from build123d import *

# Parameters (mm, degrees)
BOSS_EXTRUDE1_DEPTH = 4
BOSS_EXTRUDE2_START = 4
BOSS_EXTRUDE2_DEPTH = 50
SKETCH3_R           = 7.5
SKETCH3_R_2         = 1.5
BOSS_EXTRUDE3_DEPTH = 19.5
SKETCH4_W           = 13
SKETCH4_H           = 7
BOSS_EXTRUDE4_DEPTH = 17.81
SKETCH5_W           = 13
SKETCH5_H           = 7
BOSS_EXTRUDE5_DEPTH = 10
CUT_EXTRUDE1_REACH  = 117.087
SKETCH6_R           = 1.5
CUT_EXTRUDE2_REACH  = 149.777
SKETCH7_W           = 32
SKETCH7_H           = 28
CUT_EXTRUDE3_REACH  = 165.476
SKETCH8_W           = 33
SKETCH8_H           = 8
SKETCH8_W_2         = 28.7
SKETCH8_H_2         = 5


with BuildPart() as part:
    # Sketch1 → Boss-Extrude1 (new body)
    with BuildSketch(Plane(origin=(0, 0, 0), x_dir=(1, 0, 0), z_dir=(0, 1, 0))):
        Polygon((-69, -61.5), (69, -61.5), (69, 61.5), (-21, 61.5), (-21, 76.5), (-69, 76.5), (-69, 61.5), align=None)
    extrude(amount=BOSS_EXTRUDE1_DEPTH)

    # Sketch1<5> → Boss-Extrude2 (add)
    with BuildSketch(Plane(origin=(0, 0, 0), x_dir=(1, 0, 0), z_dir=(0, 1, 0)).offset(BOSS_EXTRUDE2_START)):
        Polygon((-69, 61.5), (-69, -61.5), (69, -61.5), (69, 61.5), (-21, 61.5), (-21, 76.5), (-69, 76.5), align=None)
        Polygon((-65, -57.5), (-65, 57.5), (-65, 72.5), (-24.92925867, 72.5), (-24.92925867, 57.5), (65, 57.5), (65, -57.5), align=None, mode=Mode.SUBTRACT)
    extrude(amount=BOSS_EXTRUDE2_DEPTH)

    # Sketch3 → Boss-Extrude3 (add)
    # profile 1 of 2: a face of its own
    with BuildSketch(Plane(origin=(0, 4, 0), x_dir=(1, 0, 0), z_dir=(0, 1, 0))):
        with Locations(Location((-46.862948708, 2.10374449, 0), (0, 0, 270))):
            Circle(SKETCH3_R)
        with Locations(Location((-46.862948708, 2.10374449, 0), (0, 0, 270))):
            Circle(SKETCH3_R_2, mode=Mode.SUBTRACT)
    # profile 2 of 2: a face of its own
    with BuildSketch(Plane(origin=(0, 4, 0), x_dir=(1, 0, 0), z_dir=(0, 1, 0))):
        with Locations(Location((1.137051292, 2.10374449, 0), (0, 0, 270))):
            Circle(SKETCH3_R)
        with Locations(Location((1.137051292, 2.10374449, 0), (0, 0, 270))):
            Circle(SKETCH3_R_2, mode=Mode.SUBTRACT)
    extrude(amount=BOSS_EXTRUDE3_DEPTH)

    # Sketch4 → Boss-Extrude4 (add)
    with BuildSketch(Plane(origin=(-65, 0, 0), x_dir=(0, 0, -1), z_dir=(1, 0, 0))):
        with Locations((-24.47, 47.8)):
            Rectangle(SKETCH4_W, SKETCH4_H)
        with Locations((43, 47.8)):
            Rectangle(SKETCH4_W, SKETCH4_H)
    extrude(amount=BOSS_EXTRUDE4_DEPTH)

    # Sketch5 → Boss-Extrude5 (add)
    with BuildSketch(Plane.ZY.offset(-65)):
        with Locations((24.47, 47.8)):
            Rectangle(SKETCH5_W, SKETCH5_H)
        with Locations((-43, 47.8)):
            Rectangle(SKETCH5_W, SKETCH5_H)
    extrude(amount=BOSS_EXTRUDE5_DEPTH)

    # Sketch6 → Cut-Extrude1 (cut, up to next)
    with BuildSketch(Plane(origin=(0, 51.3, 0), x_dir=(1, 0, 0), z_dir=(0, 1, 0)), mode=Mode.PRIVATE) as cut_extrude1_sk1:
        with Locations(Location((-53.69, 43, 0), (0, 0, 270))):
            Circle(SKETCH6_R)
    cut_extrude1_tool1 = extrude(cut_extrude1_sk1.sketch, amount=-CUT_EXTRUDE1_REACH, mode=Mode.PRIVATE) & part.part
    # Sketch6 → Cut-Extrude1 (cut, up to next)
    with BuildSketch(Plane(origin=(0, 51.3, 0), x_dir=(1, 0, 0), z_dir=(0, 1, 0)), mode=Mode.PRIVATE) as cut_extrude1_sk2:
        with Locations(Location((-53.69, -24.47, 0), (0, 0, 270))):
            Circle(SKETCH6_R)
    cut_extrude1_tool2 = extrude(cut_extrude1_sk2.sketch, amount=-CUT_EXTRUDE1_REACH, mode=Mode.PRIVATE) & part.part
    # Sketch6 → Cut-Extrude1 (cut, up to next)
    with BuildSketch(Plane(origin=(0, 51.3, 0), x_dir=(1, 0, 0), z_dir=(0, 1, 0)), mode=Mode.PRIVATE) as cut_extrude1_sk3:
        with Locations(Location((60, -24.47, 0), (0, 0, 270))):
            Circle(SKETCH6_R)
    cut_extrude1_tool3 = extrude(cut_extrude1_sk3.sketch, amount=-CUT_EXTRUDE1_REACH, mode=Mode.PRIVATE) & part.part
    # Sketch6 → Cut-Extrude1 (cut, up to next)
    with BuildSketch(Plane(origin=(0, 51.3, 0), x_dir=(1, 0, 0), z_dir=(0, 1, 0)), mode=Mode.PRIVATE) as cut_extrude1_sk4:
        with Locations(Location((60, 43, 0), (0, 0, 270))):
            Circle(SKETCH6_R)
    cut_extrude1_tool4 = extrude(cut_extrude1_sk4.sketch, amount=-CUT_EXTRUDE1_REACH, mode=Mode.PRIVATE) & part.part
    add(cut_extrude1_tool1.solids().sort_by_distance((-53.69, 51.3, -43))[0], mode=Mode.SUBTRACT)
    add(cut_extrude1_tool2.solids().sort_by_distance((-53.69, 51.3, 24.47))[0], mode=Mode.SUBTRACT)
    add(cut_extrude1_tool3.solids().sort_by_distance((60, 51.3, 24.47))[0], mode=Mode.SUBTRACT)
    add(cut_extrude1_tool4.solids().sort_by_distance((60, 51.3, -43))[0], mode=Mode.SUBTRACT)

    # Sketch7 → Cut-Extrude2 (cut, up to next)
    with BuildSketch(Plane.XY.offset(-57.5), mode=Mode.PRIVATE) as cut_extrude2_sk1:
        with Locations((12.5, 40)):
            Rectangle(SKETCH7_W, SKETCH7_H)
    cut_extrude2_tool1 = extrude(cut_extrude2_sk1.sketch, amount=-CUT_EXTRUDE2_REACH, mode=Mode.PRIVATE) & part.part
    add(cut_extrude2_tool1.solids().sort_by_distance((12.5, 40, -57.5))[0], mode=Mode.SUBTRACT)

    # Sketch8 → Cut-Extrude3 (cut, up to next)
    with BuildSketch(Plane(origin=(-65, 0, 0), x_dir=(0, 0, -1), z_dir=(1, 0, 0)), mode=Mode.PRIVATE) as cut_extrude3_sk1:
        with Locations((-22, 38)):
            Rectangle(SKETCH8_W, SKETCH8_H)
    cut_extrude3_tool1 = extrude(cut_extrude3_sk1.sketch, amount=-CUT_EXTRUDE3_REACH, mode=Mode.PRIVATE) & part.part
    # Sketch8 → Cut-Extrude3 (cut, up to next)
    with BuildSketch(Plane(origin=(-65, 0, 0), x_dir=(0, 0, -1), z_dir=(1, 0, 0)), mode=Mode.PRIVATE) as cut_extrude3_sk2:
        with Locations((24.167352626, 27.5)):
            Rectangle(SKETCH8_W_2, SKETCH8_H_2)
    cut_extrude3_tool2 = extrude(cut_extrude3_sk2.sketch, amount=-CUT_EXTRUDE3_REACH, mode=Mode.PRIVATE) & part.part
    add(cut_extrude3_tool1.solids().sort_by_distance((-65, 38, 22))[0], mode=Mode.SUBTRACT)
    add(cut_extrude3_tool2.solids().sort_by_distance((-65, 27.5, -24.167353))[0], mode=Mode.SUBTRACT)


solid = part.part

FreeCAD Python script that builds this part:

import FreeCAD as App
import Part
import Sketcher
from FreeCAD import Vector

doc = App.newDocument("Part")
body = doc.addObject("PartDesign::Body", "Body")

# Sketch on XZ plane
sketch1 = body.newObject("Sketcher::SketchObject", "Sketch")
sketch1.AttachmentSupport = (doc.getObject("XZ_Plane"), [""])
sketch1.MapMode = "FlatFace"
sketch1.addGeometry([
    Part.LineSegment(Vector(-69, 62, 0), Vector(69, 62, 0)),  # 0
    Part.LineSegment(Vector(69, 62, 0), Vector(69, -62, 0)),  # 1
    Part.LineSegment(Vector(69, -62, 0), Vector(-21, -62, 0)),  # 2
    Part.LineSegment(Vector(-21, -62, 0), Vector(-21, -76, 0)),  # 3
    Part.LineSegment(Vector(-21, -76, 0), Vector(-69, -76, 0)),  # 4
    Part.LineSegment(Vector(-69, -76, 0), Vector(-69, 62, 0)),  # 5
], False)
sketch1.addConstraint([
    Sketcher.Constraint("Coincident", 0, 2, 1, 1),
    Sketcher.Constraint("Coincident", 1, 2, 2, 1),
    Sketcher.Constraint("Coincident", 2, 2, 3, 1),
    Sketcher.Constraint("Coincident", 3, 2, 4, 1),
    Sketcher.Constraint("Coincident", 4, 2, 5, 1),
    Sketcher.Constraint("Coincident", 5, 2, 0, 1),
    Sketcher.Constraint("Horizontal", 0),
    Sketcher.Constraint("Vertical", 1),
    Sketcher.Constraint("Horizontal", 2),
    Sketcher.Constraint("Vertical", 3),
    Sketcher.Constraint("Horizontal", 4),
    Sketcher.Constraint("Vertical", 5),
    Sketcher.Constraint("Symmetric", 1, 2, 5, 2, -1, 1),
    Sketcher.Constraint("Equal", 0, 5),
    Sketcher.Constraint("DistanceX", 0, 1, 0, 2, 138.0),
    Sketcher.Constraint("DistanceX", 2, 2, 2, 1, 90.0),
    Sketcher.Constraint("DistanceY", 1, 2, 1, 1, 123.0),
])
pad1 = body.newObject("PartDesign::Pad", "Pad")
pad1.Profile = sketch1
pad1.Length = 4
pad1.Reversed = True

# Sketch on XZ plane
sketch2 = body.newObject("Sketcher::SketchObject", "Sketch001")
sketch2.AttachmentSupport = (doc.getObject("XZ_Plane"), [""])
sketch2.MapMode = "FlatFace"
sketch2.AttachmentOffset = App.Placement(Vector(0, 0, -4), App.Rotation())
sketch2.addGeometry([
    Part.LineSegment(Vector(-69, 62, 0), Vector(69, 62, 0)),  # 0
    Part.LineSegment(Vector(69, 62, 0), Vector(69, -62, 0)),  # 1
    Part.LineSegment(Vector(69, -62, 0), Vector(-21, -62, 0)),  # 2
    Part.LineSegment(Vector(-21, -62, 0), Vector(-21, -76, 0)),  # 3
    Part.LineSegment(Vector(-21, -76, 0), Vector(-69, -76, 0)),  # 4
    Part.LineSegment(Vector(-69, -76, 0), Vector(-69, 62, 0)),  # 5
    Part.LineSegment(Vector(65, 58, 0), Vector(-65, 58, 0)),  # 6
    Part.LineSegment(Vector(-65, 58, 0), Vector(-65, -72, 0)),  # 7
    Part.LineSegment(Vector(-65, -72, 0), Vector(-25, -72, 0)),  # 8
    Part.LineSegment(Vector(-25, -72, 0), Vector(-25, -58, 0)),  # 9
    Part.LineSegment(Vector(-25, -58, 0), Vector(65, -58, 0)),  # 10
    Part.LineSegment(Vector(65, -58, 0), Vector(65, 58, 0)),  # 11
], False)
sketch2.addConstraint([
    Sketcher.Constraint("Coincident", 0, 2, 1, 1),
    Sketcher.Constraint("Coincident", 1, 2, 2, 1),
    Sketcher.Constraint("Coincident", 2, 2, 3, 1),
    Sketcher.Constraint("Coincident", 3, 2, 4, 1),
    Sketcher.Constraint("Coincident", 4, 2, 5, 1),
    Sketcher.Constraint("Coincident", 5, 2, 0, 1),
    Sketcher.Constraint("Coincident", 6, 2, 7, 1),
    Sketcher.Constraint("Coincident", 7, 2, 8, 1),
    Sketcher.Constraint("Coincident", 8, 2, 9, 1),
    Sketcher.Constraint("Coincident", 9, 2, 10, 1),
    Sketcher.Constraint("Coincident", 10, 2, 11, 1),
    Sketcher.Constraint("Coincident", 11, 2, 6, 1),
    Sketcher.Constraint("Horizontal", 0),
    Sketcher.Constraint("Vertical", 1),
    Sketcher.Constraint("Horizontal", 2),
    Sketcher.Constraint("Vertical", 3),
    Sketcher.Constraint("Horizontal", 4),
    Sketcher.Constraint("Vertical", 5),
    Sketcher.Constraint("Horizontal", 6),
    Sketcher.Constraint("Vertical", 7),
    Sketcher.Constraint("Horizontal", 8),
    Sketcher.Constraint("Vertical", 9),
    Sketcher.Constraint("Horizontal", 10),
    Sketcher.Constraint("Vertical", 11),
    Sketcher.Constraint("Symmetric", 1, 2, 5, 2, -1, 1),
    Sketcher.Constraint("Symmetric", 6, 2, 10, 2, -1, 1),
    Sketcher.Constraint("Equal", 0, 5),
    Sketcher.Constraint("Equal", 6, 7),
    Sketcher.Constraint("Equal", 3, 9),
    Sketcher.Constraint("DistanceX", 0, 1, 0, 2, 138.0),
    Sketcher.Constraint("DistanceX", 2, 2, 2, 1, 90.0),
    Sketcher.Constraint("DistanceX", 6, 2, 6, 1, 130.0),
    Sketcher.Constraint("DistanceY", 1, 2, 1, 1, 123.0),
    Sketcher.Constraint("DistanceX", 8, 1, 8, 2, 40.070741),
])
pad2 = body.newObject("PartDesign::Pad", "Pad001")
pad2.Profile = sketch2
pad2.Length = 50
pad2.Reversed = True

# Sketch on XZ plane
sketch3 = body.newObject("Sketcher::SketchObject", "Sketch002")
sketch3.AttachmentSupport = (doc.getObject("XZ_Plane"), [""])
sketch3.MapMode = "FlatFace"
sketch3.AttachmentOffset = App.Placement(Vector(0, 0, -4), App.Rotation())
sketch3.addGeometry([
    Part.Circle(Vector(-46.9, -2.1, 0), Vector(0, 0, 1), 7.5),
    Part.Circle(Vector(-46.9, -2.1, 0), Vector(0, 0, 1), 1.5),
    Part.Circle(Vector(1.1, -2.1, 0), Vector(0, 0, 1), 7.5),
    Part.Circle(Vector(1.1, -2.1, 0), Vector(0, 0, 1), 1.5),
], False)
sketch3.addConstraint([
    Sketcher.Constraint("Coincident", 1, 3, 0, 3),
    Sketcher.Constraint("Coincident", 3, 3, 2, 3),
    Sketcher.Constraint("Equal", 0, 2),
    Sketcher.Constraint("Equal", 1, 3),
    Sketcher.Constraint("Horizontal", 1, 3, 2, 3),
    Sketcher.Constraint("Diameter", 0, 15.0),
    Sketcher.Constraint("Diameter", 1, 3.0),
    Sketcher.Constraint("DistanceX", 0, 3, 2, 3, 48.0),
    Sketcher.Constraint("DistanceX", 0, 3, -1, 1, 46.862949),
    Sketcher.Constraint("DistanceY", 0, 3, -1, 1, 2.103744),
])
pad3 = body.newObject("PartDesign::Pad", "Pad002")
pad3.Profile = sketch3
pad3.Length = 19.5
pad3.Reversed = True

# Sketch on YZ plane
sketch4 = body.newObject("Sketcher::SketchObject", "Sketch003")
sketch4.AttachmentSupport = (doc.getObject("YZ_Plane"), [""])
sketch4.MapMode = "FlatFace"
sketch4.AttachmentOffset = App.Placement(Vector(0, 0, -65), App.Rotation())
sketch4.addGeometry([
    Part.LineSegment(Vector(51, 31, 0), Vector(44, 31, 0)),  # 0
    Part.LineSegment(Vector(44, 31, 0), Vector(44, 18, 0)),  # 1
    Part.LineSegment(Vector(44, 18, 0), Vector(51, 18, 0)),  # 2
    Part.LineSegment(Vector(51, 18, 0), Vector(51, 31, 0)),  # 3
    Part.LineSegment(Vector(51, -36, 0), Vector(44, -36, 0)),  # 4
    Part.LineSegment(Vector(44, -36, 0), Vector(44, -50, 0)),  # 5
    Part.LineSegment(Vector(44, -50, 0), Vector(51, -50, 0)),  # 6
    Part.LineSegment(Vector(51, -50, 0), Vector(51, -36, 0)),  # 7
], False)
sketch4.addConstraint([
    Sketcher.Constraint("Coincident", 0, 2, 1, 1),
    Sketcher.Constraint("Coincident", 1, 2, 2, 1),
    Sketcher.Constraint("Coincident", 2, 2, 3, 1),
    Sketcher.Constraint("Coincident", 3, 2, 0, 1),
    Sketcher.Constraint("Coincident", 4, 2, 5, 1),
    Sketcher.Constraint("Coincident", 5, 2, 6, 1),
    Sketcher.Constraint("Coincident", 6, 2, 7, 1),
    Sketcher.Constraint("Coincident", 7, 2, 4, 1),
    Sketcher.Constraint("Horizontal", 0),
    Sketcher.Constraint("Vertical", 1),
    Sketcher.Constraint("Horizontal", 2),
    Sketcher.Constraint("Vertical", 3),
    Sketcher.Constraint("Horizontal", 4),
    Sketcher.Constraint("Vertical", 5),
    Sketcher.Constraint("Horizontal", 6),
    Sketcher.Constraint("Vertical", 7),
    Sketcher.Constraint("Vertical", 1, 2, 4, 2),
    Sketcher.Constraint("Vertical", 3, 2, 6, 2),
    Sketcher.Constraint("Equal", 3, 5),
    Sketcher.Constraint("DistanceX", 0, 2, 0, 1, 7.0),
    Sketcher.Constraint("DistanceY", 1, 2, 1, 1, 13.0),
    Sketcher.Constraint("DistanceX", -1, 1, 0, 2, 44.3),
    Sketcher.Constraint("DistanceY", 4, 2, -1, 1, 36.5),
    Sketcher.Constraint("DistanceY", -1, 1, 0, 2, 30.97),
])
pad4 = body.newObject("PartDesign::Pad", "Pad003")
pad4.Profile = sketch4
pad4.Length = 17.81

# Sketch on YZ plane
sketch5 = body.newObject("Sketcher::SketchObject", "Sketch004")
sketch5.AttachmentSupport = (doc.getObject("YZ_Plane"), [""])
sketch5.MapMode = "FlatFace"
sketch5.AttachmentOffset = App.Placement(Vector(0, 0, 65), App.Rotation())
sketch5.addGeometry([
    Part.LineSegment(Vector(51, 18, 0), Vector(44, 18, 0)),  # 0
    Part.LineSegment(Vector(44, 18, 0), Vector(44, 31, 0)),  # 1
    Part.LineSegment(Vector(44, 31, 0), Vector(51, 31, 0)),  # 2
    Part.LineSegment(Vector(51, 31, 0), Vector(51, 18, 0)),  # 3
    Part.LineSegment(Vector(51, -50, 0), Vector(44, -50, 0)),  # 4
    Part.LineSegment(Vector(44, -50, 0), Vector(44, -36, 0)),  # 5
    Part.LineSegment(Vector(44, -36, 0), Vector(51, -36, 0)),  # 6
    Part.LineSegment(Vector(51, -36, 0), Vector(51, -50, 0)),  # 7
], False)
sketch5.addConstraint([
    Sketcher.Constraint("Coincident", 0, 2, 1, 1),
    Sketcher.Constraint("Coincident", 1, 2, 2, 1),
    Sketcher.Constraint("Coincident", 2, 2, 3, 1),
    Sketcher.Constraint("Coincident", 3, 2, 0, 1),
    Sketcher.Constraint("Coincident", 4, 2, 5, 1),
    Sketcher.Constraint("Coincident", 5, 2, 6, 1),
    Sketcher.Constraint("Coincident", 6, 2, 7, 1),
    Sketcher.Constraint("Coincident", 7, 2, 4, 1),
    Sketcher.Constraint("Horizontal", 0),
    Sketcher.Constraint("Vertical", 1),
    Sketcher.Constraint("Horizontal", 2),
    Sketcher.Constraint("Vertical", 3),
    Sketcher.Constraint("Horizontal", 4),
    Sketcher.Constraint("Vertical", 5),
    Sketcher.Constraint("Horizontal", 6),
    Sketcher.Constraint("Vertical", 7),
    Sketcher.Constraint("Vertical", 1, 2, 4, 2),
    Sketcher.Constraint("Vertical", 3, 2, 6, 2),
    Sketcher.Constraint("Equal", 3, 5),
    Sketcher.Constraint("DistanceX", 0, 2, 0, 1, 7.0),
    Sketcher.Constraint("DistanceY", 1, 1, 1, 2, 13.0),
    Sketcher.Constraint("DistanceX", -1, 1, 0, 2, 44.3),
    Sketcher.Constraint("DistanceY", 4, 2, -1, 1, 49.5),
    Sketcher.Constraint("DistanceY", -1, 1, 0, 2, 17.97),
])
pad5 = body.newObject("PartDesign::Pad", "Pad004")
pad5.Profile = sketch5
pad5.Length = 10
pad5.Reversed = True

# Sketch on XZ plane
sketch6 = body.newObject("Sketcher::SketchObject", "Sketch005")
sketch6.AttachmentSupport = (doc.getObject("XZ_Plane"), [""])
sketch6.MapMode = "FlatFace"
sketch6.AttachmentOffset = App.Placement(Vector(0, 0, -51.3), App.Rotation())
sketch6.addGeometry(Part.Circle(Vector(-53.7, -43, 0), Vector(0, 0, 1), 1.5), False)
sketch6.addConstraint([
    Sketcher.Constraint("Diameter", 0, 3.0),
    Sketcher.Constraint("DistanceY", 0, 3, -1, 1, 43.0),
    Sketcher.Constraint("DistanceX", 0, 3, -1, 1, 53.69),
])
pocket1 = body.newObject("PartDesign::Pocket", "Pocket")
pocket1.Profile = sketch6
pocket1.Type = "UpToFirst"
pocket1.Reversed = True

# Sketch on XZ plane
sketch7 = body.newObject("Sketcher::SketchObject", "Sketch006")
sketch7.AttachmentSupport = (doc.getObject("XZ_Plane"), [""])
sketch7.MapMode = "FlatFace"
sketch7.AttachmentOffset = App.Placement(Vector(0, 0, -51.3), App.Rotation())
sketch7.addGeometry(Part.Circle(Vector(-53.7, 24.5, 0), Vector(0, 0, 1), 1.5), False)
sketch7.addConstraint([
    Sketcher.Constraint("Diameter", 0, 3.0),
    Sketcher.Constraint("DistanceX", 0, 3, -1, 1, 53.69),
    Sketcher.Constraint("DistanceY", -1, 1, 0, 3, 24.47),
])
pocket2 = body.newObject("PartDesign::Pocket", "Pocket001")
pocket2.Profile = sketch7
pocket2.Type = "UpToFirst"
pocket2.Reversed = True

# Sketch on XZ plane
sketch8 = body.newObject("Sketcher::SketchObject", "Sketch007")
sketch8.AttachmentSupport = (doc.getObject("XZ_Plane"), [""])
sketch8.MapMode = "FlatFace"
sketch8.AttachmentOffset = App.Placement(Vector(0, 0, -51.3), App.Rotation())
sketch8.addGeometry(Part.Circle(Vector(60, 24.5, 0), Vector(0, 0, 1), 1.5), False)
sketch8.addConstraint([
    Sketcher.Constraint("Diameter", 0, 3.0),
    Sketcher.Constraint("DistanceX", -1, 1, 0, 3, 60.0),
    Sketcher.Constraint("DistanceY", -1, 1, 0, 3, 24.47),
])
pocket3 = body.newObject("PartDesign::Pocket", "Pocket002")
pocket3.Profile = sketch8
pocket3.Type = "UpToFirst"
pocket3.Reversed = True

# Sketch on XZ plane
sketch9 = body.newObject("Sketcher::SketchObject", "Sketch008")
sketch9.AttachmentSupport = (doc.getObject("XZ_Plane"), [""])
sketch9.MapMode = "FlatFace"
sketch9.AttachmentOffset = App.Placement(Vector(0, 0, -51.3), App.Rotation())
sketch9.addGeometry(Part.Circle(Vector(60, -43, 0), Vector(0, 0, 1), 1.5), False)
sketch9.addConstraint([
    Sketcher.Constraint("Diameter", 0, 3.0),
    Sketcher.Constraint("DistanceX", -1, 1, 0, 3, 60.0),
    Sketcher.Constraint("DistanceY", 0, 3, -1, 1, 43.0),
])
pocket4 = body.newObject("PartDesign::Pocket", "Pocket003")
pocket4.Profile = sketch9
pocket4.Type = "UpToFirst"
pocket4.Reversed = True

# Sketch on XY plane
sketch10 = body.newObject("Sketcher::SketchObject", "Sketch009")
sketch10.AttachmentSupport = (doc.getObject("XY_Plane"), [""])
sketch10.MapMode = "FlatFace"
sketch10.AttachmentOffset = App.Placement(Vector(0, 0, -57.5), App.Rotation())
sketch10.addGeometry([
    Part.LineSegment(Vector(-4, 54, 0), Vector(-4, 26, 0)),
    Part.LineSegment(Vector(-4, 26, 0), Vector(28, 26, 0)),
    Part.LineSegment(Vector(28, 26, 0), Vector(28, 54, 0)),
    Part.LineSegment(Vector(28, 54, 0), Vector(-4, 54, 0)),
], False)
sketch10.addConstraint([
    Sketcher.Constraint("Coincident", 0, 2, 1, 1),
    Sketcher.Constraint("Coincident", 1, 2, 2, 1),
    Sketcher.Constraint("Coincident", 2, 2, 3, 1),
    Sketcher.Constraint("Coincident", 3, 2, 0, 1),
    Sketcher.Constraint("Vertical", 0),
    Sketcher.Constraint("Horizontal", 1),
    Sketcher.Constraint("Vertical", 2),
    Sketcher.Constraint("Horizontal", 3),
    Sketcher.Constraint("DistanceX", 1, 1, 1, 2, 32.0),
    Sketcher.Constraint("DistanceY", 0, 2, 0, 1, 28.0),
    Sketcher.Constraint("DistanceY", -1, 1, 0, 2, 26.0),
    Sketcher.Constraint("DistanceX", 0, 2, -1, 1, 3.5),
])
pocket5 = body.newObject("PartDesign::Pocket", "Pocket004")
pocket5.Profile = sketch10
pocket5.Type = "UpToFirst"

# Sketch on YZ plane
sketch11 = body.newObject("Sketcher::SketchObject", "Sketch010")
sketch11.AttachmentSupport = (doc.getObject("YZ_Plane"), [""])
sketch11.MapMode = "FlatFace"
sketch11.AttachmentOffset = App.Placement(Vector(0, 0, -65), App.Rotation())
sketch11.addGeometry([
    Part.LineSegment(Vector(42, 38, 0), Vector(34, 38, 0)),
    Part.LineSegment(Vector(34, 38, 0), Vector(34, 6, 0)),
    Part.LineSegment(Vector(34, 6, 0), Vector(42, 6, 0)),
    Part.LineSegment(Vector(42, 6, 0), Vector(42, 38, 0)),
], False)
sketch11.addConstraint([
    Sketcher.Constraint("Coincident", 0, 2, 1, 1),
    Sketcher.Constraint("Coincident", 1, 2, 2, 1),
    Sketcher.Constraint("Coincident", 2, 2, 3, 1),
    Sketcher.Constraint("Coincident", 3, 2, 0, 1),
    Sketcher.Constraint("Horizontal", 0),
    Sketcher.Constraint("Vertical", 1),
    Sketcher.Constraint("Horizontal", 2),
    Sketcher.Constraint("Vertical", 3),
    Sketcher.Constraint("DistanceX", 0, 2, 0, 1, 8.0),
    Sketcher.Constraint("DistanceY", 1, 2, 1, 1, 33.0),
    Sketcher.Constraint("DistanceX", -1, 1, 0, 2, 34.0),
    Sketcher.Constraint("DistanceY", -1, 1, 0, 2, 38.5),
])
pocket6 = body.newObject("PartDesign::Pocket", "Pocket005")
pocket6.Profile = sketch11
pocket6.Type = "UpToFirst"

# Sketch on YZ plane
sketch12 = body.newObject("Sketcher::SketchObject", "Sketch011")
sketch12.AttachmentSupport = (doc.getObject("YZ_Plane"), [""])
sketch12.MapMode = "FlatFace"
sketch12.AttachmentOffset = App.Placement(Vector(0, 0, -65), App.Rotation())
sketch12.addGeometry([
    Part.LineSegment(Vector(30, -10, 0), Vector(25, -10, 0)),
    Part.LineSegment(Vector(25, -10, 0), Vector(25, -39, 0)),
    Part.LineSegment(Vector(25, -39, 0), Vector(30, -39, 0)),
    Part.LineSegment(Vector(30, -39, 0), Vector(30, -10, 0)),
], False)
sketch12.addConstraint([
    Sketcher.Constraint("Coincident", 0, 2, 1, 1),
    Sketcher.Constraint("Coincident", 1, 2, 2, 1),
    Sketcher.Constraint("Coincident", 2, 2, 3, 1),
    Sketcher.Constraint("Coincident", 3, 2, 0, 1),
    Sketcher.Constraint("Horizontal", 0),
    Sketcher.Constraint("Vertical", 1),
    Sketcher.Constraint("Horizontal", 2),
    Sketcher.Constraint("Vertical", 3),
    Sketcher.Constraint("DistanceX", 0, 2, 0, 1, 5.0),
    Sketcher.Constraint("DistanceY", 1, 2, 1, 1, 28.7),
    Sketcher.Constraint("DistanceX", -1, 1, 0, 2, 25.0),
    Sketcher.Constraint("DistanceY", 0, 2, -1, 1, 9.817353),
])
pocket7 = body.newObject("PartDesign::Pocket", "Pocket006")
pocket7.Profile = sketch12
pocket7.Type = "UpToFirst"

doc.recompute()
